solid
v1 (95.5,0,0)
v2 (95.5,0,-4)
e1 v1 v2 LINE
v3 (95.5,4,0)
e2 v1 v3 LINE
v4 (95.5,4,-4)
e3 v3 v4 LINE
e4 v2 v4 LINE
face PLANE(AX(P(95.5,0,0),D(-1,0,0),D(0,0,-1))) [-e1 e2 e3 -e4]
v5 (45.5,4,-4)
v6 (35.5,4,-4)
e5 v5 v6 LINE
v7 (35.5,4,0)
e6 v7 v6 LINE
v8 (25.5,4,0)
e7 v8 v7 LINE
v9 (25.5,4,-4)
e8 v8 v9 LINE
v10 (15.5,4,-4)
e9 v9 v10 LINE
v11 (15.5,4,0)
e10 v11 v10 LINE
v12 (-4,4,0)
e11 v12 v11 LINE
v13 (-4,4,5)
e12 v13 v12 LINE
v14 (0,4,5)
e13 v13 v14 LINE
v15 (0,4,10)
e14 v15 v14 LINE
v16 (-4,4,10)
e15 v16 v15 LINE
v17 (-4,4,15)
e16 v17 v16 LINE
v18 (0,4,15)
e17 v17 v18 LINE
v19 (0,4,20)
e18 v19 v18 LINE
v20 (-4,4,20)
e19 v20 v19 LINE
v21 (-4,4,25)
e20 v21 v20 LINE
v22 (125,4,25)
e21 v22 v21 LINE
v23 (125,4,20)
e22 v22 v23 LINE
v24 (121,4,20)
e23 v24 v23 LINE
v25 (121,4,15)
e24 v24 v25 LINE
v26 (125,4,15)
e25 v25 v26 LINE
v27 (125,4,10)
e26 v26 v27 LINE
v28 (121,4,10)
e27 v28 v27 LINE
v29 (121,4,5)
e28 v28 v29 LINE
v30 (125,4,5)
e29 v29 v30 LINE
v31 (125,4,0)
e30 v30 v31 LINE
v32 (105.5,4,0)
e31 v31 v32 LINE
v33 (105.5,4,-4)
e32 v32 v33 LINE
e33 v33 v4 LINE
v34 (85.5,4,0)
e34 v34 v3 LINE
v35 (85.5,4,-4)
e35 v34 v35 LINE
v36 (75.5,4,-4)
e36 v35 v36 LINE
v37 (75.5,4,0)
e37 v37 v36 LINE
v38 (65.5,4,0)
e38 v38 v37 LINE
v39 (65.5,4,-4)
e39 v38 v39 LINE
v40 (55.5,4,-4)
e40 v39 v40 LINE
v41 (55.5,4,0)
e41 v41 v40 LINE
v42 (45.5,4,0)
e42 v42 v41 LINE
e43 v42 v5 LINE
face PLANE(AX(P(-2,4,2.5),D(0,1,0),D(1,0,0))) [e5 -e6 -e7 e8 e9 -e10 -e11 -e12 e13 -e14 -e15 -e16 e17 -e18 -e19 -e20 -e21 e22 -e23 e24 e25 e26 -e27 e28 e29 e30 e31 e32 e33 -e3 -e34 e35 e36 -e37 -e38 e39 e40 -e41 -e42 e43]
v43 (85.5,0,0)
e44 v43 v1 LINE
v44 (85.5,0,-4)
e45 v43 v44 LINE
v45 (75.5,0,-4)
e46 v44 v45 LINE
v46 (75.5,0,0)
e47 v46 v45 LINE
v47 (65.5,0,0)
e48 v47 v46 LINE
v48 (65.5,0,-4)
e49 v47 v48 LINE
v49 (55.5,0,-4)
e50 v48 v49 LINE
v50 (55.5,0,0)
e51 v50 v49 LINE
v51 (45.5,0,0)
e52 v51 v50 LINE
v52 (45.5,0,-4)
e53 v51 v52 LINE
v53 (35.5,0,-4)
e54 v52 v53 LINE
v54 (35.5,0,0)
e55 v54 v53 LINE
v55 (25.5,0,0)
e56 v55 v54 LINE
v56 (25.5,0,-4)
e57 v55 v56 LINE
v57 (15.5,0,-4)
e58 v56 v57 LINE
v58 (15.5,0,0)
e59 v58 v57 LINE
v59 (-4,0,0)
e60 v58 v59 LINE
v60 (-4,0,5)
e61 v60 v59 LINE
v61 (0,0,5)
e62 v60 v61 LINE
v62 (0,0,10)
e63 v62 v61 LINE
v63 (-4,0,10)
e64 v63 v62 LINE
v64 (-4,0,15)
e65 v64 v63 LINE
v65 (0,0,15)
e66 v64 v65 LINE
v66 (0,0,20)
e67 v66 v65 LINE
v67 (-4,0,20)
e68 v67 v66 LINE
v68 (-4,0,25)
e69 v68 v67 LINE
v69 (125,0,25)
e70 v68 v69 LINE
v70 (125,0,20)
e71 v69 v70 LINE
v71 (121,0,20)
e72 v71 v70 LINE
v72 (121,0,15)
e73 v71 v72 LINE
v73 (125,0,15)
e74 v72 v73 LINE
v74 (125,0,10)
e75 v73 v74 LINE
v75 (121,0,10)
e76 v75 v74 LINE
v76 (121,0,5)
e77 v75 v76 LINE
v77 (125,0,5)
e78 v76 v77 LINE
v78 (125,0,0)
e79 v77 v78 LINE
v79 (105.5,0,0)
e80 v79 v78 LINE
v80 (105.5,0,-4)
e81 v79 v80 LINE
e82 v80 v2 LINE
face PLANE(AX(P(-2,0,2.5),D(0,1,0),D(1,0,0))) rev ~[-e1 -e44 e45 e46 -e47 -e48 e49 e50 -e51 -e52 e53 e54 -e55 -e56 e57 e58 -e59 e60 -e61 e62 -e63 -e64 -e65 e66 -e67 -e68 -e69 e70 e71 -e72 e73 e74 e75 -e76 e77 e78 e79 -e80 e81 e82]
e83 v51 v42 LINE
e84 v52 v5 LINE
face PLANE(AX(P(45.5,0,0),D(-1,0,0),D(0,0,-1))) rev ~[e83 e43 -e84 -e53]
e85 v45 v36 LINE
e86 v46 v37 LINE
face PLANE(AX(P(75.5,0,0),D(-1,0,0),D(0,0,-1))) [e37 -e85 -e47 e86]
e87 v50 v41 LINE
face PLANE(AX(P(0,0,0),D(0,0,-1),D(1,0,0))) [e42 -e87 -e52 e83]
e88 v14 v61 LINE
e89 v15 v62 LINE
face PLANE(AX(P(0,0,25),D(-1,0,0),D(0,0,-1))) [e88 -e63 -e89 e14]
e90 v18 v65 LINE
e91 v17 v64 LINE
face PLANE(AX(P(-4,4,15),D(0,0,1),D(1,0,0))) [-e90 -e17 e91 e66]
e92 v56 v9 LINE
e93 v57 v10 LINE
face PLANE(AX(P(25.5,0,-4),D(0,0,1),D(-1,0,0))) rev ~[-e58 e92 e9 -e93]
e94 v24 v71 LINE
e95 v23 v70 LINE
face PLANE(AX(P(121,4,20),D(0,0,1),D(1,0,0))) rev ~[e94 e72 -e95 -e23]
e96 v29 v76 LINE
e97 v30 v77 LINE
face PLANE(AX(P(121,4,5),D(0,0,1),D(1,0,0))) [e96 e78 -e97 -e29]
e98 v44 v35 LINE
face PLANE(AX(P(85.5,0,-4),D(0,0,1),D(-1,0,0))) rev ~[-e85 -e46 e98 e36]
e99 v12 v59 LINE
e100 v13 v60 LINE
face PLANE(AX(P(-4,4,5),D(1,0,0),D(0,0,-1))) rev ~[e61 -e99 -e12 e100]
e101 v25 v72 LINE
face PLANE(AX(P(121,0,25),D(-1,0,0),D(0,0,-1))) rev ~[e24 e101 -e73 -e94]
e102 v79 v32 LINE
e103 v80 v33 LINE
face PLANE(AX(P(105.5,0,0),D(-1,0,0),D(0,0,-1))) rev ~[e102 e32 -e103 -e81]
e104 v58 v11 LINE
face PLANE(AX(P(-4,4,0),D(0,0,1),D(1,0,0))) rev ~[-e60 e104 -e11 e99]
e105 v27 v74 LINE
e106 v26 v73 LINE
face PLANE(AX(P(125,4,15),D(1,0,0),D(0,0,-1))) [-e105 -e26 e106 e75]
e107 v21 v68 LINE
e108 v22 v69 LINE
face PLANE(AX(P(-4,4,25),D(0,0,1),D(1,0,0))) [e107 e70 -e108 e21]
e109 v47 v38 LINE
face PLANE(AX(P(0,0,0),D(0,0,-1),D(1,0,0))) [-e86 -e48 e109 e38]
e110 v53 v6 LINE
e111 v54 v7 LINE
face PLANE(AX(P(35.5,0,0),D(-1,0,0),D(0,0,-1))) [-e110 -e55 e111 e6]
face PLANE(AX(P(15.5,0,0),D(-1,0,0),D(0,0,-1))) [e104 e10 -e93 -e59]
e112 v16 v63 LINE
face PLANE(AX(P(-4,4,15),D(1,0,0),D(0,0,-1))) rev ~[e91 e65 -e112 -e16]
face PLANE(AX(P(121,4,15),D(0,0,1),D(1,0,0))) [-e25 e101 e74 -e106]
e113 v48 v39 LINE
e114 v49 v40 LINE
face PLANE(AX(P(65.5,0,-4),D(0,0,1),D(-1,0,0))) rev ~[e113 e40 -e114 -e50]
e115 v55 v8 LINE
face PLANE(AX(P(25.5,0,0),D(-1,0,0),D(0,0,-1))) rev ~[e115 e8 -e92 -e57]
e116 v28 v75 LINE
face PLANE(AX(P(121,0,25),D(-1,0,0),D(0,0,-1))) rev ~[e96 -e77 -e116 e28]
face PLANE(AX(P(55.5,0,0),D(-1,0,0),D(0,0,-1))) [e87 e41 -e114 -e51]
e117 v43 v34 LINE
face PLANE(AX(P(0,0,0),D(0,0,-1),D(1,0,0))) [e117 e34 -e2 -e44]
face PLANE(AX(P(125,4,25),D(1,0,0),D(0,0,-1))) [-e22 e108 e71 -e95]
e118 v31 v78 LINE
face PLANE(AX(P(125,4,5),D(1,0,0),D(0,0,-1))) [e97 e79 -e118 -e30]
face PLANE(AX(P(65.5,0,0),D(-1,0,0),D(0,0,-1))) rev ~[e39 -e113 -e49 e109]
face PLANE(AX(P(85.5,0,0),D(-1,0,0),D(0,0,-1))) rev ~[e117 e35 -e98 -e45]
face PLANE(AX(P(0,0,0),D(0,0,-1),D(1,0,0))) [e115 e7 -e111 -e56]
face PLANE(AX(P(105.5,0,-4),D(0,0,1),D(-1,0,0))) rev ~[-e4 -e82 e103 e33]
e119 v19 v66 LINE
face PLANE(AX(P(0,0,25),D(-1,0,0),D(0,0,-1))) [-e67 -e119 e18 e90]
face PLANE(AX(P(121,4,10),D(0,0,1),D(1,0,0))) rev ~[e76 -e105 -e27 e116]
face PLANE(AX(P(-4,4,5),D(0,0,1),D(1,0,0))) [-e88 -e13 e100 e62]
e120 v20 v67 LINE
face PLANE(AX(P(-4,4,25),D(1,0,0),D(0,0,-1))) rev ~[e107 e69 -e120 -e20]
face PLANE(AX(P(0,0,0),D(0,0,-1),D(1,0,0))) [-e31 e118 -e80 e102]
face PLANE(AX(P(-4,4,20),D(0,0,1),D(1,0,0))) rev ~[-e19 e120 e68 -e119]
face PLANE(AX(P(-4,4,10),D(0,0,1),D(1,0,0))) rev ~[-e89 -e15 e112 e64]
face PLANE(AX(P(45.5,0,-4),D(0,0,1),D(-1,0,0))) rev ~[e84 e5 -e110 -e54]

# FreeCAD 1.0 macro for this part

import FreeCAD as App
import Part
import Sketcher
from FreeCAD import Vector
Q = App.Units.Quantity

doc = App.newDocument("Part")
body = doc.addObject("PartDesign::Body", "Body")

# Sketch on XZ plane
sketch1 = body.newObject("Sketcher::SketchObject", "Sketch")
sketch1.AttachmentSupport = (doc.getObject("XZ_Plane"), [""])
sketch1.MapMode = "FlatFace"
sketch1.addGeometry([
    Part.LineSegment(Vector(0, 0, 0), Vector(0, 25, 0)),
    Part.LineSegment(Vector(0, 25, 0), Vector(121, 25, 0)),
    Part.LineSegment(Vector(121, 25, 0), Vector(121, 0, 0)),
    Part.LineSegment(Vector(121, 0, 0), Vector(0, 0, 0)),
], False)
sketch1.addConstraint([
    Sketcher.Constraint("Coincident", 0, 2, 1, 1),
    Sketcher.Constraint("Coincident", 1, 2, 2, 1),
    Sketcher.Constraint("Coincident", 2, 2, 3, 1),
    Sketcher.Constraint("Coincident", 3, 2, 0, 1),
    Sketcher.Constraint("Vertical", 0),
    Sketcher.Constraint("Horizontal", 1),
    Sketcher.Constraint("Vertical", 2),
    Sketcher.Constraint("Horizontal", 3),
    Sketcher.Constraint("Coincident", 3, 2, -1, 1),
    Sketcher.Constraint("DistanceX", 1, 1, 1, 2, Q("121 mm")),
    Sketcher.Constraint("DistanceY", 0, 1, 0, 2, Q("25 mm")),
])
pad1 = body.newObject("PartDesign::Pad", "Pad")
pad1.Profile = sketch1
pad1.Length = 4
pad1.Reversed = True

# Sketch on XZ plane
sketch2 = body.newObject("Sketcher::SketchObject", "Sketch001")
sketch2.AttachmentSupport = (doc.getObject("XZ_Plane"), [""])
sketch2.MapMode = "FlatFace"
sketch2.addGeometry([
    Part.LineSegment(Vector(65.5, -4, 0), Vector(65.5, 0, 0)),
    Part.LineSegment(Vector(65.5, 0, 0), Vector(55.5, 0, 0)),
    Part.LineSegment(Vector(55.5, 0, 0), Vector(55.5, -4, 0)),
    Part.LineSegment(Vector(55.5, -4, 0), Vector(65.5, -4, 0)),
], False)
sketch2.addConstraint([
    Sketcher.Constraint("Coincident", 0, 2, 1, 1),
    Sketcher.Constraint("Coincident", 1, 2, 2, 1),
    Sketcher.Constraint("Coincident", 2, 2, 3, 1),
    Sketcher.Constraint("Coincident", 3, 2, 0, 1),
    Sketcher.Constraint("Vertical", 0),
    Sketcher.Constraint("Horizontal", 1),
    Sketcher.Constraint("Vertical", 2),
    Sketcher.Constraint("Horizontal", 3),
    Sketcher.Constraint("PointOnObject", 0, 2, -1),
    Sketcher.Constraint("DistanceX", 1, 2, 1, 1, Q("10 mm")),
    Sketcher.Constraint("DistanceY", 0, 1, 0, 2, Q("4 mm")),
    Sketcher.Constraint("DistanceX", -1, 1, 0, 2, Q("65.5 mm")),
])
pad2 = body.newObject("PartDesign::Pad", "Pad001")
pad2.Profile = sketch2
pad2.Length = 4
pad2.Reversed = True
doc.recompute()

linearpattern = body.newObject("PartDesign::LinearPattern", "LinearPattern")
linearpattern.Originals = [pad2]
linearpattern.Direction = (doc.getObject("X_Axis"), [""])
linearpattern.Mode = "offset"
linearpattern.Offset = 20
linearpattern.Occurrences = 3
body.Tip = linearpattern
doc.recompute()

linearpattern2 = body.newObject("PartDesign::LinearPattern", "LinearPattern001")
linearpattern2.Originals = [pad2]
linearpattern2.Direction = (doc.getObject("X_Axis"), [""])
linearpattern2.Mode = "offset"
linearpattern2.Offset = 20
linearpattern2.Occurrences = 3
linearpattern2.Reversed = True
body.Tip = linearpattern2

# Sketch on XZ plane
sketch3 = body.newObject("Sketcher::SketchObject", "Sketch002")
sketch3.AttachmentSupport = (doc.getObject("XZ_Plane"), [""])
sketch3.MapMode = "FlatFace"
sketch3.AttachmentOffset = App.Placement(Vector(0, 0, -4), App.Rotation())
sketch3.addGeometry([
    Part.LineSegment(Vector(-4, 20, 0), Vector(-4, 25, 0)),  # 0
    Part.LineSegment(Vector(-4, 25, 0), Vector(0, 25, 0)),  # 1
    Part.LineSegment(Vector(0, 25, 0), Vector(0, 20, 0)),  # 2
    Part.LineSegment(Vector(0, 20, 0), Vector(-4, 20, 0)),  # 3
    Part.LineSegment(Vector(121, 20, 0), Vector(121, 25, 0)),  # 4
    Part.LineSegment(Vector(121, 25, 0), Vector(125, 25, 0)),  # 5
    Part.LineSegment(Vector(125, 25, 0), Vector(125, 20, 0)),  # 6
    Part.LineSegment(Vector(125, 20, 0), Vector(121, 20, 0)),  # 7
], False)
sketch3.addConstraint([
    Sketcher.Constraint("Coincident", 0, 2, 1, 1),
    Sketcher.Constraint("Coincident", 1, 2, 2, 1),
    Sketcher.Constraint("Coincident", 2, 2, 3, 1),
    Sketcher.Constraint("Coincident", 3, 2, 0, 1),
    Sketcher.Constraint("Coincident", 4, 2, 5, 1),
    Sketcher.Constraint("Coincident", 5, 2, 6, 1),
    Sketcher.Constraint("Coincident", 6, 2, 7, 1),
    Sketcher.Constraint("Coincident", 7, 2, 4, 1),
    Sketcher.Constraint("Vertical", 0),
    Sketcher.Constraint("Horizontal", 1),
    Sketcher.Constraint("Vertical", 2),
    Sketcher.Constraint("Horizontal", 3),
    Sketcher.Constraint("Vertical", 4),
    Sketcher.Constraint("Horizontal", 5),
    Sketcher.Constraint("Vertical", 6),
    Sketcher.Constraint("Horizontal", 7),
    Sketcher.Constraint("PointOnObject", 1, 2, -2),
    Sketcher.Constraint("Horizontal", 1, 2, 4, 2),
    Sketcher.Constraint("Horizontal", 3, 2, 6, 2),
    Sketcher.Constraint("Equal", 3, 5),
    Sketcher.Constraint("DistanceX", 1, 1, 1, 2, Q("4 mm")),
    Sketcher.Constraint("DistanceY", 0, 1, 0, 2, Q("5 mm")),
    Sketcher.Constraint("DistanceY", -1, 1, 0, 2, Q("25 mm")),
    Sketcher.Constraint("DistanceX", -1, 1, 4, 2, Q("121 mm")),
])
pad3 = body.newObject("PartDesign::Pad", "Pad002")
pad3.Profile = sketch3
pad3.Length = 4
doc.recompute()

linearpattern3 = body.newObject("PartDesign::LinearPattern", "LinearPattern002")
linearpattern3.Originals = [pad3]
linearpattern3.Direction = (doc.getObject("Z_Axis"), [""])
linearpattern3.Mode = "offset"
linearpattern3.Offset = 10
linearpattern3.Occurrences = 3
linearpattern3.Reversed = True
body.Tip = linearpattern3

doc.recompute()
